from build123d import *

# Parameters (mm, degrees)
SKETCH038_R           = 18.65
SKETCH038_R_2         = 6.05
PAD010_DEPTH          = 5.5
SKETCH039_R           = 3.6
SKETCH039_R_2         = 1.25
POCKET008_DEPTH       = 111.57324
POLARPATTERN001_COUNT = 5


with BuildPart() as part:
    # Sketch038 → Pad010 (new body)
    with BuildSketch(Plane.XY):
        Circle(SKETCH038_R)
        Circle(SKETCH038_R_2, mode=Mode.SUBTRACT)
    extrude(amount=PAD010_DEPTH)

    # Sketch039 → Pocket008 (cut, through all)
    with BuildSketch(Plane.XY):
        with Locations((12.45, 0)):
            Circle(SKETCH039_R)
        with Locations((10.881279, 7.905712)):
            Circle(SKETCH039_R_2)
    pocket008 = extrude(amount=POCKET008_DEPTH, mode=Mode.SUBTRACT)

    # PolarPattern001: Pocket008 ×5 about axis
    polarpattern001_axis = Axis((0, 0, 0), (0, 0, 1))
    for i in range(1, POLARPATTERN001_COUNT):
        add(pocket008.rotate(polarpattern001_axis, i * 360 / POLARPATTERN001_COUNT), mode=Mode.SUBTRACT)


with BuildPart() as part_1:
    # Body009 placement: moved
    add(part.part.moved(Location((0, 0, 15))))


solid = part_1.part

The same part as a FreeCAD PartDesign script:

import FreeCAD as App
import Part
import Sketcher
from FreeCAD import Vector

doc = App.newDocument("Part")
body = doc.addObject("PartDesign::Body", "Body")

# Sketch on XY plane
sketch1 = body.newObject("Sketcher::SketchObject", "Sketch")
sketch1.AttachmentSupport = (doc.getObject("XY_Plane"), [""])
sketch1.MapMode = "FlatFace"
sketch1.addGeometry([
    Part.Circle(Vector(0, 0, 0), Vector(0, 0, 1), 19),
    Part.Circle(Vector(0, 0, 0), Vector(0, 0, 1), 6),
], False)
sketch1.addConstraint([
    Sketcher.Constraint("Coincident", 0, 3, -1, 1),
    Sketcher.Constraint("Coincident", 1, 3, -1, 1),
    Sketcher.Constraint("Diameter", 0, 37.3),
    Sketcher.Constraint("Diameter", 1, 12.1),
])
pad1 = body.newObject("PartDesign::Pad", "Pad")
pad1.Profile = sketch1
pad1.Length = 5.5

# Sketch on XY plane
sketch2 = body.newObject("Sketcher::SketchObject", "Sketch001")
sketch2.AttachmentSupport = (doc.getObject("XY_Plane"), [""])
sketch2.MapMode = "FlatFace"
sketch2.addGeometry([
    Part.Circle(Vector(12.4, 0, 0), Vector(0, 0, 1), 3.6),
    Part.Circle(Vector(10.9, 7.9, 0), Vector(0, 0, 1), 1.2),
], False)
sketch2.addConstraint([
    Sketcher.Constraint("PointOnObject", 0, 3, -1),
    Sketcher.Constraint("Diameter", 0, 7.2),
    Sketcher.Constraint("Diameter", 1, 2.5),
    Sketcher.Constraint("DistanceX", -1, 1, 0, 3, 12.45),
    Sketcher.Constraint("DistanceX", -1, 1, 1, 3, 10.881279),
    Sketcher.Constraint("DistanceY", -1, 1, 1, 3, 7.905712),
])
pocket1 = body.newObject("PartDesign::Pocket", "Pocket")
pocket1.Profile = sketch2
pocket1.Type = "ThroughAll"
pocket1.Reversed = True
doc.recompute()

polarpattern = body.newObject("PartDesign::PolarPattern", "PolarPattern")
polarpattern.Originals = [pocket1]
polarpattern.Axis = (doc.getObject("Z_Axis"), [""])
polarpattern.Angle = 360
polarpattern.Occurrences = 5
body.Tip = polarpattern
body2 = doc.addObject("PartDesign::Body", "Body001")
doc.recompute()

body.Placement = App.Placement(Vector(0, 0, 15), App.Rotation(Vector(0, 0, 1), 0))
boolean = body2.newObject("PartDesign::Boolean", "Boolean")
boolean.Type = "Fuse"
boolean.addObjects([body])

doc.recompute()
